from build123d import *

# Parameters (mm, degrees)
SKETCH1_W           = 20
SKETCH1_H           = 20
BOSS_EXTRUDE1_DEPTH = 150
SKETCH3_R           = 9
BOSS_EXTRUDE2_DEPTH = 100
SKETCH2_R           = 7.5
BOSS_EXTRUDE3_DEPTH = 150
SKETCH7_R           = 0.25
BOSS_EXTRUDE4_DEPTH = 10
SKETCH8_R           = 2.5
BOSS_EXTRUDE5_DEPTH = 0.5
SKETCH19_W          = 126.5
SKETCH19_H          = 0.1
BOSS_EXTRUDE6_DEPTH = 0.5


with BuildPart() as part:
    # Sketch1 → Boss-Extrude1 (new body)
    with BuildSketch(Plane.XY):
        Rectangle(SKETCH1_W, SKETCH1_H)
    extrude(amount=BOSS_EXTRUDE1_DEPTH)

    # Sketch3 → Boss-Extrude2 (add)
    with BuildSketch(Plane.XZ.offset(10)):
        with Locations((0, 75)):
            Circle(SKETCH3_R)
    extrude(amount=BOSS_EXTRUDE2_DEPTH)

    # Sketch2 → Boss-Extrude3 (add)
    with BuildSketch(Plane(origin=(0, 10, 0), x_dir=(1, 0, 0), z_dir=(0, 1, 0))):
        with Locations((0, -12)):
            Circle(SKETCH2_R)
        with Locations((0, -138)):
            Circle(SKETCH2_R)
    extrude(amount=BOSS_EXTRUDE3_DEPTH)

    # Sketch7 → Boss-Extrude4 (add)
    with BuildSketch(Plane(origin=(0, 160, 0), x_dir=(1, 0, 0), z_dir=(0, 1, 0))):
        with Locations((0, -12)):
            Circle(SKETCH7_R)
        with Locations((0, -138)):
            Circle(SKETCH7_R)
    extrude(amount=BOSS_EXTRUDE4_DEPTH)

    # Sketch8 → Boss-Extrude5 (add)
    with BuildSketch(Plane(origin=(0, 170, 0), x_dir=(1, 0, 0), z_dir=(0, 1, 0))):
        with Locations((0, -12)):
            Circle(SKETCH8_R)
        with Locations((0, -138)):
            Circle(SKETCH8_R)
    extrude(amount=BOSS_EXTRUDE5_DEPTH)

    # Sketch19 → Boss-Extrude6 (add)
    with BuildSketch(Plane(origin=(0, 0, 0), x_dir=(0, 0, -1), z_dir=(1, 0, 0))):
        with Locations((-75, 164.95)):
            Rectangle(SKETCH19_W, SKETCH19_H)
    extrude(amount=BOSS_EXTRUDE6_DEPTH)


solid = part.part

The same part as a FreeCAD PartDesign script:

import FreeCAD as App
import Part
import Sketcher
from FreeCAD import Vector
Q = App.Units.Quantity

doc = App.newDocument("Part")
body = doc.addObject("PartDesign::Body", "Body")

sketch1 = body.newObject("Sketcher::SketchObject", "Sketch")
sketch1.AttachmentSupport = (doc.getObject("XY_Plane"), [""])
sketch1.MapMode = "FlatFace"
sketch1.addGeometry(Part.LineSegment(Vector(-10, 10, 0), Vector(-10, -10, 0)), False)
sketch1.addGeometry(Part.LineSegment(Vector(-10, -10, 0), Vector(10, -10, 0)), False)
sketch1.addGeometry(Part.LineSegment(Vector(10, -10, 0), Vector(10, 10, 0)), False)
sketch1.addGeometry(Part.LineSegment(Vector(10, 10, 0), Vector(-10, 10, 0)), False)
sketch1.addConstraint(Sketcher.Constraint("Coincident", 0, 2, 1, 1))
sketch1.addConstraint(Sketcher.Constraint("Coincident", 1, 2, 2, 1))
sketch1.addConstraint(Sketcher.Constraint("Coincident", 2, 2, 3, 1))
sketch1.addConstraint(Sketcher.Constraint("Coincident", 3, 2, 0, 1))
sketch1.addConstraint(Sketcher.Constraint("Vertical", 0))
sketch1.addConstraint(Sketcher.Constraint("Horizontal", 1))
sketch1.addConstraint(Sketcher.Constraint("Vertical", 2))
sketch1.addConstraint(Sketcher.Constraint("Horizontal", 3))
sketch1.addConstraint(Sketcher.Constraint("Symmetric", 0, 2, 2, 2, -1, 1))
sketch1.addConstraint(Sketcher.Constraint("Equal", 3, 0))
sketch1.addConstraint(Sketcher.Constraint("DistanceX", 1, 1, 1, 2, Q("20 mm")))
pad1 = body.newObject("PartDesign::Pad", "Pad")
pad1.Profile = sketch1
pad1.Length = 150

sketch2 = body.newObject("Sketcher::SketchObject", "Sketch001")
sketch2.AttachmentSupport = (doc.getObject("XZ_Plane"), [""])
sketch2.MapMode = "FlatFace"
sketch2.AttachmentOffset = App.Placement(Vector(0, 0, 10), App.Rotation())
sketch2.addGeometry(Part.Circle(Vector(0, 75, 0), Vector(0, 0, 1), 9), False)
sketch2.addConstraint(Sketcher.Constraint("PointOnObject", 0, 3, -2))
sketch2.addConstraint(Sketcher.Constraint("Diameter", 0, Q("18 mm")))
sketch2.addConstraint(Sketcher.Constraint("DistanceY", -1, 1, 0, 3, Q("75 mm")))
pad2 = body.newObject("PartDesign::Pad", "Pad001")
pad2.Profile = sketch2
pad2.Length = 100

sketch3 = body.newObject("Sketcher::SketchObject", "Sketch002")
sketch3.AttachmentSupport = (doc.getObject("XZ_Plane"), [""])
sketch3.MapMode = "FlatFace"
sketch3.AttachmentOffset = App.Placement(Vector(0, 0, -10), App.Rotation())
sketch3.addGeometry(Part.Circle(Vector(0, 12, 0), Vector(0, 0, 1), 8), False)
sketch3.addGeometry(Part.Circle(Vector(0, 138, 0), Vector(0, 0, 1), 8), False)
sketch3.addConstraint(Sketcher.Constraint("Equal", 0, 1))
sketch3.addConstraint(Sketcher.Constraint("PointOnObject", 0, 3, -2))
sketch3.addConstraint(Sketcher.Constraint("PointOnObject", 1, 3, -2))
sketch3.addConstraint(Sketcher.Constraint("Diameter", 0, Q("15 mm")))
sketch3.addConstraint(Sketcher.Constraint("DistanceY", -1, 1, 0, 3, Q("12 mm")))
sketch3.addConstraint(Sketcher.Constraint("DistanceY", -1, 1, 1, 3, Q("138 mm")))
pad3 = body.newObject("PartDesign::Pad", "Pad002")
pad3.Profile = sketch3
pad3.Length = 150
pad3.Reversed = True

sketch4 = body.newObject("Sketcher::SketchObject", "Sketch003")
sketch4.AttachmentSupport = (doc.getObject("XZ_Plane"), [""])
sketch4.MapMode = "FlatFace"
sketch4.AttachmentOffset = App.Placement(Vector(0, 0, -160), App.Rotation())
sketch4.addGeometry(Part.Circle(Vector(0, 12, 0), Vector(0, 0, 1), 0.25), False)
sketch4.addGeometry(Part.Circle(Vector(0, 138, 0), Vector(0, 0, 1), 0.25), False)
sketch4.addConstraint(Sketcher.Constraint("Equal", 0, 1))
sketch4.addConstraint(Sketcher.Constraint("PointOnObject", 0, 3, -2))
sketch4.addConstraint(Sketcher.Constraint("PointOnObject", 1, 3, -2))
sketch4.addConstraint(Sketcher.Constraint("Diameter", 0, Q("0.5 mm")))
sketch4.addConstraint(Sketcher.Constraint("DistanceY", -1, 1, 0, 3, Q("12 mm")))
sketch4.addConstraint(Sketcher.Constraint("DistanceY", -1, 1, 1, 3, Q("138 mm")))
pad4 = body.newObject("PartDesign::Pad", "Pad003")
pad4.Profile = sketch4
pad4.Length = 10
pad4.Reversed = True

sketch5 = body.newObject("Sketcher::SketchObject", "Sketch004")
sketch5.AttachmentSupport = (doc.getObject("XZ_Plane"), [""])
sketch5.MapMode = "FlatFace"
sketch5.AttachmentOffset = App.Placement(Vector(0, 0, -170), App.Rotation())
sketch5.addGeometry(Part.Circle(Vector(0, 12, 0), Vector(0, 0, 1), 2.5), False)
sketch5.addGeometry(Part.Circle(Vector(0, 138, 0), Vector(0, 0, 1), 2.5), False)
sketch5.addConstraint(Sketcher.Constraint("Equal", 0, 1))
sketch5.addConstraint(Sketcher.Constraint("PointOnObject", 0, 3, -2))
sketch5.addConstraint(Sketcher.Constraint("PointOnObject", 1, 3, -2))
sketch5.addConstraint(Sketcher.Constraint("Diameter", 0, Q("5 mm")))
sketch5.addConstraint(Sketcher.Constraint("DistanceY", -1, 1, 0, 3, Q("12 mm")))
sketch5.addConstraint(Sketcher.Constraint("DistanceY", -1, 1, 1, 3, Q("138 mm")))
pad5 = body.newObject("PartDesign::Pad", "Pad004")
pad5.Profile = sketch5
pad5.Length = 0.5
pad5.Reversed = True

sketch6 = body.newObject("Sketcher::SketchObject", "Sketch005")
sketch6.AttachmentSupport = (doc.getObject("YZ_Plane"), [""])
sketch6.MapMode = "FlatFace"
sketch6.addGeometry(Part.LineSegment(Vector(165, 138.25, 0), Vector(164.9, 138.25, 0)), False)
sketch6.addGeometry(Part.LineSegment(Vector(164.9, 138.25, 0), Vector(164.9, 11.75, 0)), False)
sketch6.addGeometry(Part.LineSegment(Vector(164.9, 11.75, 0), Vector(165, 11.75, 0)), False)
sketch6.addGeometry(Part.LineSegment(Vector(165, 11.75, 0), Vector(165, 138.25, 0)), False)
sketch6.addConstraint(Sketcher.Constraint("Coincident", 0, 2, 1, 1))
sketch6.addConstraint(Sketcher.Constraint("Coincident", 1, 2, 2, 1))
sketch6.addConstraint(Sketcher.Constraint("Coincident", 2, 2, 3, 1))
sketch6.addConstraint(Sketcher.Constraint("Coincident", 3, 2, 0, 1))
sketch6.addConstraint(Sketcher.Constraint("Horizontal", 0))
sketch6.addConstraint(Sketcher.Constraint("Vertical", 1))
sketch6.addConstraint(Sketcher.Constraint("Horizontal", 2))
sketch6.addConstraint(Sketcher.Constraint("Vertical", 3))
sketch6.addConstraint(Sketcher.Constraint("DistanceX", 0, 2, 0, 1, Q("0.1 mm")))
sketch6.addConstraint(Sketcher.Constraint("DistanceY", 1, 2, 1, 1, Q("126.5 mm")))
sketch6.addConstraint(Sketcher.Constraint("DistanceX", -1, 1, 2, 2, Q("165 mm")))
sketch6.addConstraint(Sketcher.Constraint("DistanceY", -1, 1, 0, 2, Q("138.25 mm")))
pad6 = body.newObject("PartDesign::Pad", "Pad005")
pad6.Profile = sketch6
pad6.Length = 0.5

doc.recompute()
